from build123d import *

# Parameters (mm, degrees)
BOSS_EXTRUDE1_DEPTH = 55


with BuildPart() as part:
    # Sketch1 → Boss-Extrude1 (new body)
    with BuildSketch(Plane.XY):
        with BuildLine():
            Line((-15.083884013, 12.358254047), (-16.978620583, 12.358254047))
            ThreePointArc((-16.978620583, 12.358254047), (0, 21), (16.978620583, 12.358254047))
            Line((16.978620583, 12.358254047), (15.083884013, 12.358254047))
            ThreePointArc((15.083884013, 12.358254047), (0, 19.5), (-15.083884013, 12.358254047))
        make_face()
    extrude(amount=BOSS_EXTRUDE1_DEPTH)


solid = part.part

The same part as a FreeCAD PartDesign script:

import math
import FreeCAD as App
import Part
import Sketcher

V = App.Vector
Q = App.Units.Quantity

doc = App.newDocument("Part")
body = doc.addObject("PartDesign::Body", "Body")

# Sketch on XY plane
sketch1 = doc.addObject("Sketcher::SketchObject", "Sketch")
body.addObject(sketch1)
sketch1.AttachmentSupport = (doc.XY_Plane, [""])
sketch1.MapMode = "FlatFace"
sketch1.addGeometry([
    Part.LineSegment(V(-17, 12.4, 0), V(-15.1, 12.4, 0)),
    Part.ArcOfCircle(Part.Circle(V(0, 0, 0), V(0, 0, 1), 19.5), math.radians(39), math.radians(141)),
    Part.LineSegment(V(15.1, 12.4, 0), V(17, 12.4, 0)),
    Part.ArcOfCircle(Part.Circle(V(0, 0, 0), V(0, 0, 1), 21), math.radians(36), math.radians(144)),
], False)
sketch1.addConstraint([
    Sketcher.Constraint("Coincident", 0, 2, 1, 2),
    Sketcher.Constraint("Coincident", 1, 1, 2, 1),
    Sketcher.Constraint("Coincident", 2, 2, 3, 1),
    Sketcher.Constraint("Coincident", 3, 2, 0, 1),
    Sketcher.Constraint("Horizontal", 0),
    Sketcher.Constraint("Horizontal", 2),
    Sketcher.Constraint("Coincident", 1, 3, -1, 1),
    Sketcher.Constraint("Coincident", 3, 3, -1, 1),
    Sketcher.Constraint("Horizontal", 0, 2, 1, 1),
    Sketcher.Constraint("Radius", 3, Q("21 mm")),
    Sketcher.Constraint("Radius", 1, Q("19.5 mm")),
    Sketcher.Constraint("DistanceX", 0, 1, 0, 2, Q("1.894737 mm")),
])
pad1 = doc.addObject("PartDesign::Pad", "Pad")
body.addObject(pad1)
pad1.Profile = sketch1
pad1.Length = 55

doc.recompute()
